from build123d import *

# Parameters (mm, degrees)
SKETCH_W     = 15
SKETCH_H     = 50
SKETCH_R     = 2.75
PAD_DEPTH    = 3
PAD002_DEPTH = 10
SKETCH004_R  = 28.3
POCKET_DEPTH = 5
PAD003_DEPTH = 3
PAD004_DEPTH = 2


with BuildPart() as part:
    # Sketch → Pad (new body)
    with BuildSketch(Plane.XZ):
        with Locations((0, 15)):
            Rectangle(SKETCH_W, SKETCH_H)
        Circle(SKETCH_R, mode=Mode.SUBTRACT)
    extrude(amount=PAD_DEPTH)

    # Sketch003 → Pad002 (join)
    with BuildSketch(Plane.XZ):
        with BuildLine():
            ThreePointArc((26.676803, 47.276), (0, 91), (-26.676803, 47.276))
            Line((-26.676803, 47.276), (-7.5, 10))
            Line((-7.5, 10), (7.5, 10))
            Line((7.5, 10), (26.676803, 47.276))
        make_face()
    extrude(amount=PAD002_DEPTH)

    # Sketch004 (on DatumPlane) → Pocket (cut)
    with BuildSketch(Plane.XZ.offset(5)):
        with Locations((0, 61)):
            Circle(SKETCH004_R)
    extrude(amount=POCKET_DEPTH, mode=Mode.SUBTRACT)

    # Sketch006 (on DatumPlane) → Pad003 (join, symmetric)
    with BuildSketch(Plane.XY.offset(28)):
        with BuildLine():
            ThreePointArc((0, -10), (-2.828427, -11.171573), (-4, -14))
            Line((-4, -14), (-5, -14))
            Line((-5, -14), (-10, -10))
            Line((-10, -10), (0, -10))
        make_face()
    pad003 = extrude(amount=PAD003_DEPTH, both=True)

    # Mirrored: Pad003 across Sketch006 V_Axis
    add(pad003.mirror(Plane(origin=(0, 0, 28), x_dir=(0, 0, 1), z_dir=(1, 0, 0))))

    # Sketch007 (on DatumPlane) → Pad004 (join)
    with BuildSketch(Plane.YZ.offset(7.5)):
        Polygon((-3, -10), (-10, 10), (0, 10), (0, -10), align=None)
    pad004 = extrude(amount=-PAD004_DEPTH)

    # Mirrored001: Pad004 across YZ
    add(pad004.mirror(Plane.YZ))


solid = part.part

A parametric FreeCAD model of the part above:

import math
import FreeCAD as App
import Part
import Sketcher


def add_polygon(sketch, points):
    """Adds a closed chain of lines whose ends are joined by coincident constraints."""
    first, n = sketch.GeometryCount, len(points)
    for a, b in zip(points, points[1:] + points[:1]):
        sketch.addGeometry(Part.LineSegment(App.Vector(*a, 0), App.Vector(*b, 0)), False)
    for i in range(n):
        sketch.addConstraint(Sketcher.Constraint("Coincident", first + i, 2, first + (i + 1) % n, 1))

doc = App.newDocument("Part")
body = doc.addObject("PartDesign::Body", "Body")

sketch1 = body.newObject("Sketcher::SketchObject", "Sketch")
sketch1.AttachmentSupport = (doc.getObject("XZ_Plane"), [""])
sketch1.MapMode = "FlatFace"
add_polygon(sketch1, [(-7.5, 40), (-7.5, -10), (7.5, -10), (7.5, 40)])
sketch1.addGeometry(Part.Circle(App.Vector(0, 0, 0), App.Vector(0, 0, 1), 2.8), False)
sketch1.addConstraint([
    Sketcher.Constraint("Vertical", 0),
    Sketcher.Constraint("Horizontal", 1),
    Sketcher.Constraint("Vertical", 2),
    Sketcher.Constraint("Horizontal", 3),
    Sketcher.Constraint("Coincident", 4, 3, -1, 1),
    Sketcher.Constraint("Diameter", 4, 5.5),
    Sketcher.Constraint("DistanceX", 1, 1, 1, 2, 15.0),
    Sketcher.Constraint("DistanceY", 0, 2, 0, 1, 50.0),
    Sketcher.Constraint("DistanceY", 0, 2, -1, 1, 10.0),
    Sketcher.Constraint("DistanceX", 0, 2, -1, 1, 7.5),
])
pad1 = body.newObject("PartDesign::Pad", "Pad")
pad1.Profile = sketch1
pad1.Length = 3

sketch2 = body.newObject("Sketcher::SketchObject", "Sketch001")
sketch2.AttachmentSupport = (doc.getObject("XZ_Plane"), [""])
sketch2.MapMode = "FlatFace"
sketch2.addGeometry([
    Part.ArcOfCircle(Part.Circle(App.Vector(0, 61, 0), App.Vector(0, 0, 1), 30), math.radians(-27), math.radians(207)),
    Part.LineSegment(App.Vector(-27, 47, 0), App.Vector(-8, 10, 0)),
    Part.LineSegment(App.Vector(-8, 10, 0), App.Vector(8, 10, 0)),
    Part.LineSegment(App.Vector(8, 10, 0), App.Vector(27, 47, 0)),
], False)
sketch2.addConstraint([
    Sketcher.Constraint("Tangent", 0, 2, 1, 1),
    Sketcher.Constraint("Coincident", 1, 2, 2, 1),
    Sketcher.Constraint("Coincident", 2, 2, 3, 1),
    Sketcher.Constraint("Tangent", 3, 2, 0, 1),
    Sketcher.Constraint("Horizontal", 2),
    Sketcher.Constraint("Symmetric", 0, 2, 3, 2, -2),
    Sketcher.Constraint("Radius", 0, 30.0),
    Sketcher.Constraint("DistanceX", 2, 1, 2, 2, 15.0),
    Sketcher.Constraint("DistanceY", -1, 1, 0, 3, 61.0),
    Sketcher.Constraint("DistanceY", -1, 1, 1, 2, 10.0),
])
pad2 = body.newObject("PartDesign::Pad", "Pad001")
pad2.Profile = sketch2
pad2.Length = 10

sketch3 = body.newObject("Sketcher::SketchObject", "Sketch002")
sketch3.AttachmentSupport = (doc.getObject("XZ_Plane"), [""])
sketch3.MapMode = "FlatFace"
sketch3.AttachmentOffset = App.Placement(App.Vector(0, 0, 5), App.Rotation())
sketch3.addGeometry(Part.Circle(App.Vector(0, 61, 0), App.Vector(0, 0, 1), 28), False)
sketch3.addConstraint([
    Sketcher.Constraint("PointOnObject", 0, 3, -2),
    Sketcher.Constraint("Diameter", 0, 56.6),
    Sketcher.Constraint("DistanceY", -1, 1, 0, 3, 61.0),
])
pocket1 = body.newObject("PartDesign::Pocket", "Pocket")
pocket1.Profile = sketch3
pocket1.Length = 5
pocket1.Reversed = True

sketch4 = body.newObject("Sketcher::SketchObject", "Sketch003")
sketch4.AttachmentSupport = (doc.getObject("XY_Plane"), [""])
sketch4.MapMode = "FlatFace"
sketch4.AttachmentOffset = App.Placement(App.Vector(0, 0, 28), App.Rotation())
sketch4.addGeometry([
    Part.ArcOfCircle(Part.Circle(App.Vector(0, -14, 0), App.Vector(0, 0, 1), 4), math.radians(90), math.radians(180)),
    Part.LineSegment(App.Vector(0, -10, 0), App.Vector(-10, -10, 0)),
    Part.LineSegment(App.Vector(-10, -10, 0), App.Vector(-5, -14, 0)),
    Part.LineSegment(App.Vector(-5, -14, 0), App.Vector(-4, -14, 0)),
], False)
sketch4.addConstraint([
    Sketcher.Constraint("Tangent", 0, 1, 1, 1),
    Sketcher.Constraint("Coincident", 1, 2, 2, 1),
    Sketcher.Constraint("Coincident", 2, 2, 3, 1),
    Sketcher.Constraint("Coincident", 3, 2, 0, 2),
    Sketcher.Constraint("Horizontal", 1),
    Sketcher.Constraint("Horizontal", 3),
    Sketcher.Constraint("PointOnObject", 0, 3, -2),
    Sketcher.Constraint("Horizontal", 0, 3, 2, 2),
    Sketcher.Constraint("Radius", 0, 4.0),
    Sketcher.Constraint("DistanceX", 1, 2, 1, 1, 10.0),
    Sketcher.Constraint("DistanceX", 3, 1, 3, 2, 1.0),
    Sketcher.Constraint("DistanceY", 0, 3, -1, 1, 14.0),
])
pad3 = body.newObject("PartDesign::Pad", "Pad002")
pad3.Profile = sketch4
pad3.Length = 6
pad3.Midplane = True
doc.recompute()

mirrored = body.newObject("PartDesign::Mirrored", "Mirrored")
mirrored.Originals = [pad3]
mirrored.MirrorPlane = (doc.getObject("YZ_Plane"), [""])
body.Tip = mirrored

sketch5 = body.newObject("Sketcher::SketchObject", "Sketch004")
sketch5.AttachmentSupport = (doc.getObject("YZ_Plane"), [""])
sketch5.MapMode = "FlatFace"
sketch5.AttachmentOffset = App.Placement(App.Vector(0, 0, 7.5), App.Rotation())
add_polygon(sketch5, [(-10, 10), (-3, -10), (0, -10), (0, 10)])
sketch5.addConstraint([
    Sketcher.Constraint("Horizontal", 1),
    Sketcher.Constraint("Vertical", 2),
    Sketcher.Constraint("Horizontal", 3),
    Sketcher.Constraint("Symmetric", 1, 2, 2, 2, -1, 1),
    Sketcher.Constraint("DistanceX", 1, 1, 1, 2, 3.0),
    Sketcher.Constraint("DistanceX", 3, 2, 3, 1, 10.0),
    Sketcher.Constraint("DistanceY", 2, 1, 2, 2, 20.0),
])
pad4 = body.newObject("PartDesign::Pad", "Pad003")
pad4.Profile = sketch5
pad4.Length = 2
pad4.Reversed = True
doc.recompute()

mirrored2 = body.newObject("PartDesign::Mirrored", "Mirrored001")
mirrored2.Originals = [pad4]
mirrored2.MirrorPlane = (doc.getObject("YZ_Plane"), [""])
body.Tip = mirrored2

doc.recompute()
